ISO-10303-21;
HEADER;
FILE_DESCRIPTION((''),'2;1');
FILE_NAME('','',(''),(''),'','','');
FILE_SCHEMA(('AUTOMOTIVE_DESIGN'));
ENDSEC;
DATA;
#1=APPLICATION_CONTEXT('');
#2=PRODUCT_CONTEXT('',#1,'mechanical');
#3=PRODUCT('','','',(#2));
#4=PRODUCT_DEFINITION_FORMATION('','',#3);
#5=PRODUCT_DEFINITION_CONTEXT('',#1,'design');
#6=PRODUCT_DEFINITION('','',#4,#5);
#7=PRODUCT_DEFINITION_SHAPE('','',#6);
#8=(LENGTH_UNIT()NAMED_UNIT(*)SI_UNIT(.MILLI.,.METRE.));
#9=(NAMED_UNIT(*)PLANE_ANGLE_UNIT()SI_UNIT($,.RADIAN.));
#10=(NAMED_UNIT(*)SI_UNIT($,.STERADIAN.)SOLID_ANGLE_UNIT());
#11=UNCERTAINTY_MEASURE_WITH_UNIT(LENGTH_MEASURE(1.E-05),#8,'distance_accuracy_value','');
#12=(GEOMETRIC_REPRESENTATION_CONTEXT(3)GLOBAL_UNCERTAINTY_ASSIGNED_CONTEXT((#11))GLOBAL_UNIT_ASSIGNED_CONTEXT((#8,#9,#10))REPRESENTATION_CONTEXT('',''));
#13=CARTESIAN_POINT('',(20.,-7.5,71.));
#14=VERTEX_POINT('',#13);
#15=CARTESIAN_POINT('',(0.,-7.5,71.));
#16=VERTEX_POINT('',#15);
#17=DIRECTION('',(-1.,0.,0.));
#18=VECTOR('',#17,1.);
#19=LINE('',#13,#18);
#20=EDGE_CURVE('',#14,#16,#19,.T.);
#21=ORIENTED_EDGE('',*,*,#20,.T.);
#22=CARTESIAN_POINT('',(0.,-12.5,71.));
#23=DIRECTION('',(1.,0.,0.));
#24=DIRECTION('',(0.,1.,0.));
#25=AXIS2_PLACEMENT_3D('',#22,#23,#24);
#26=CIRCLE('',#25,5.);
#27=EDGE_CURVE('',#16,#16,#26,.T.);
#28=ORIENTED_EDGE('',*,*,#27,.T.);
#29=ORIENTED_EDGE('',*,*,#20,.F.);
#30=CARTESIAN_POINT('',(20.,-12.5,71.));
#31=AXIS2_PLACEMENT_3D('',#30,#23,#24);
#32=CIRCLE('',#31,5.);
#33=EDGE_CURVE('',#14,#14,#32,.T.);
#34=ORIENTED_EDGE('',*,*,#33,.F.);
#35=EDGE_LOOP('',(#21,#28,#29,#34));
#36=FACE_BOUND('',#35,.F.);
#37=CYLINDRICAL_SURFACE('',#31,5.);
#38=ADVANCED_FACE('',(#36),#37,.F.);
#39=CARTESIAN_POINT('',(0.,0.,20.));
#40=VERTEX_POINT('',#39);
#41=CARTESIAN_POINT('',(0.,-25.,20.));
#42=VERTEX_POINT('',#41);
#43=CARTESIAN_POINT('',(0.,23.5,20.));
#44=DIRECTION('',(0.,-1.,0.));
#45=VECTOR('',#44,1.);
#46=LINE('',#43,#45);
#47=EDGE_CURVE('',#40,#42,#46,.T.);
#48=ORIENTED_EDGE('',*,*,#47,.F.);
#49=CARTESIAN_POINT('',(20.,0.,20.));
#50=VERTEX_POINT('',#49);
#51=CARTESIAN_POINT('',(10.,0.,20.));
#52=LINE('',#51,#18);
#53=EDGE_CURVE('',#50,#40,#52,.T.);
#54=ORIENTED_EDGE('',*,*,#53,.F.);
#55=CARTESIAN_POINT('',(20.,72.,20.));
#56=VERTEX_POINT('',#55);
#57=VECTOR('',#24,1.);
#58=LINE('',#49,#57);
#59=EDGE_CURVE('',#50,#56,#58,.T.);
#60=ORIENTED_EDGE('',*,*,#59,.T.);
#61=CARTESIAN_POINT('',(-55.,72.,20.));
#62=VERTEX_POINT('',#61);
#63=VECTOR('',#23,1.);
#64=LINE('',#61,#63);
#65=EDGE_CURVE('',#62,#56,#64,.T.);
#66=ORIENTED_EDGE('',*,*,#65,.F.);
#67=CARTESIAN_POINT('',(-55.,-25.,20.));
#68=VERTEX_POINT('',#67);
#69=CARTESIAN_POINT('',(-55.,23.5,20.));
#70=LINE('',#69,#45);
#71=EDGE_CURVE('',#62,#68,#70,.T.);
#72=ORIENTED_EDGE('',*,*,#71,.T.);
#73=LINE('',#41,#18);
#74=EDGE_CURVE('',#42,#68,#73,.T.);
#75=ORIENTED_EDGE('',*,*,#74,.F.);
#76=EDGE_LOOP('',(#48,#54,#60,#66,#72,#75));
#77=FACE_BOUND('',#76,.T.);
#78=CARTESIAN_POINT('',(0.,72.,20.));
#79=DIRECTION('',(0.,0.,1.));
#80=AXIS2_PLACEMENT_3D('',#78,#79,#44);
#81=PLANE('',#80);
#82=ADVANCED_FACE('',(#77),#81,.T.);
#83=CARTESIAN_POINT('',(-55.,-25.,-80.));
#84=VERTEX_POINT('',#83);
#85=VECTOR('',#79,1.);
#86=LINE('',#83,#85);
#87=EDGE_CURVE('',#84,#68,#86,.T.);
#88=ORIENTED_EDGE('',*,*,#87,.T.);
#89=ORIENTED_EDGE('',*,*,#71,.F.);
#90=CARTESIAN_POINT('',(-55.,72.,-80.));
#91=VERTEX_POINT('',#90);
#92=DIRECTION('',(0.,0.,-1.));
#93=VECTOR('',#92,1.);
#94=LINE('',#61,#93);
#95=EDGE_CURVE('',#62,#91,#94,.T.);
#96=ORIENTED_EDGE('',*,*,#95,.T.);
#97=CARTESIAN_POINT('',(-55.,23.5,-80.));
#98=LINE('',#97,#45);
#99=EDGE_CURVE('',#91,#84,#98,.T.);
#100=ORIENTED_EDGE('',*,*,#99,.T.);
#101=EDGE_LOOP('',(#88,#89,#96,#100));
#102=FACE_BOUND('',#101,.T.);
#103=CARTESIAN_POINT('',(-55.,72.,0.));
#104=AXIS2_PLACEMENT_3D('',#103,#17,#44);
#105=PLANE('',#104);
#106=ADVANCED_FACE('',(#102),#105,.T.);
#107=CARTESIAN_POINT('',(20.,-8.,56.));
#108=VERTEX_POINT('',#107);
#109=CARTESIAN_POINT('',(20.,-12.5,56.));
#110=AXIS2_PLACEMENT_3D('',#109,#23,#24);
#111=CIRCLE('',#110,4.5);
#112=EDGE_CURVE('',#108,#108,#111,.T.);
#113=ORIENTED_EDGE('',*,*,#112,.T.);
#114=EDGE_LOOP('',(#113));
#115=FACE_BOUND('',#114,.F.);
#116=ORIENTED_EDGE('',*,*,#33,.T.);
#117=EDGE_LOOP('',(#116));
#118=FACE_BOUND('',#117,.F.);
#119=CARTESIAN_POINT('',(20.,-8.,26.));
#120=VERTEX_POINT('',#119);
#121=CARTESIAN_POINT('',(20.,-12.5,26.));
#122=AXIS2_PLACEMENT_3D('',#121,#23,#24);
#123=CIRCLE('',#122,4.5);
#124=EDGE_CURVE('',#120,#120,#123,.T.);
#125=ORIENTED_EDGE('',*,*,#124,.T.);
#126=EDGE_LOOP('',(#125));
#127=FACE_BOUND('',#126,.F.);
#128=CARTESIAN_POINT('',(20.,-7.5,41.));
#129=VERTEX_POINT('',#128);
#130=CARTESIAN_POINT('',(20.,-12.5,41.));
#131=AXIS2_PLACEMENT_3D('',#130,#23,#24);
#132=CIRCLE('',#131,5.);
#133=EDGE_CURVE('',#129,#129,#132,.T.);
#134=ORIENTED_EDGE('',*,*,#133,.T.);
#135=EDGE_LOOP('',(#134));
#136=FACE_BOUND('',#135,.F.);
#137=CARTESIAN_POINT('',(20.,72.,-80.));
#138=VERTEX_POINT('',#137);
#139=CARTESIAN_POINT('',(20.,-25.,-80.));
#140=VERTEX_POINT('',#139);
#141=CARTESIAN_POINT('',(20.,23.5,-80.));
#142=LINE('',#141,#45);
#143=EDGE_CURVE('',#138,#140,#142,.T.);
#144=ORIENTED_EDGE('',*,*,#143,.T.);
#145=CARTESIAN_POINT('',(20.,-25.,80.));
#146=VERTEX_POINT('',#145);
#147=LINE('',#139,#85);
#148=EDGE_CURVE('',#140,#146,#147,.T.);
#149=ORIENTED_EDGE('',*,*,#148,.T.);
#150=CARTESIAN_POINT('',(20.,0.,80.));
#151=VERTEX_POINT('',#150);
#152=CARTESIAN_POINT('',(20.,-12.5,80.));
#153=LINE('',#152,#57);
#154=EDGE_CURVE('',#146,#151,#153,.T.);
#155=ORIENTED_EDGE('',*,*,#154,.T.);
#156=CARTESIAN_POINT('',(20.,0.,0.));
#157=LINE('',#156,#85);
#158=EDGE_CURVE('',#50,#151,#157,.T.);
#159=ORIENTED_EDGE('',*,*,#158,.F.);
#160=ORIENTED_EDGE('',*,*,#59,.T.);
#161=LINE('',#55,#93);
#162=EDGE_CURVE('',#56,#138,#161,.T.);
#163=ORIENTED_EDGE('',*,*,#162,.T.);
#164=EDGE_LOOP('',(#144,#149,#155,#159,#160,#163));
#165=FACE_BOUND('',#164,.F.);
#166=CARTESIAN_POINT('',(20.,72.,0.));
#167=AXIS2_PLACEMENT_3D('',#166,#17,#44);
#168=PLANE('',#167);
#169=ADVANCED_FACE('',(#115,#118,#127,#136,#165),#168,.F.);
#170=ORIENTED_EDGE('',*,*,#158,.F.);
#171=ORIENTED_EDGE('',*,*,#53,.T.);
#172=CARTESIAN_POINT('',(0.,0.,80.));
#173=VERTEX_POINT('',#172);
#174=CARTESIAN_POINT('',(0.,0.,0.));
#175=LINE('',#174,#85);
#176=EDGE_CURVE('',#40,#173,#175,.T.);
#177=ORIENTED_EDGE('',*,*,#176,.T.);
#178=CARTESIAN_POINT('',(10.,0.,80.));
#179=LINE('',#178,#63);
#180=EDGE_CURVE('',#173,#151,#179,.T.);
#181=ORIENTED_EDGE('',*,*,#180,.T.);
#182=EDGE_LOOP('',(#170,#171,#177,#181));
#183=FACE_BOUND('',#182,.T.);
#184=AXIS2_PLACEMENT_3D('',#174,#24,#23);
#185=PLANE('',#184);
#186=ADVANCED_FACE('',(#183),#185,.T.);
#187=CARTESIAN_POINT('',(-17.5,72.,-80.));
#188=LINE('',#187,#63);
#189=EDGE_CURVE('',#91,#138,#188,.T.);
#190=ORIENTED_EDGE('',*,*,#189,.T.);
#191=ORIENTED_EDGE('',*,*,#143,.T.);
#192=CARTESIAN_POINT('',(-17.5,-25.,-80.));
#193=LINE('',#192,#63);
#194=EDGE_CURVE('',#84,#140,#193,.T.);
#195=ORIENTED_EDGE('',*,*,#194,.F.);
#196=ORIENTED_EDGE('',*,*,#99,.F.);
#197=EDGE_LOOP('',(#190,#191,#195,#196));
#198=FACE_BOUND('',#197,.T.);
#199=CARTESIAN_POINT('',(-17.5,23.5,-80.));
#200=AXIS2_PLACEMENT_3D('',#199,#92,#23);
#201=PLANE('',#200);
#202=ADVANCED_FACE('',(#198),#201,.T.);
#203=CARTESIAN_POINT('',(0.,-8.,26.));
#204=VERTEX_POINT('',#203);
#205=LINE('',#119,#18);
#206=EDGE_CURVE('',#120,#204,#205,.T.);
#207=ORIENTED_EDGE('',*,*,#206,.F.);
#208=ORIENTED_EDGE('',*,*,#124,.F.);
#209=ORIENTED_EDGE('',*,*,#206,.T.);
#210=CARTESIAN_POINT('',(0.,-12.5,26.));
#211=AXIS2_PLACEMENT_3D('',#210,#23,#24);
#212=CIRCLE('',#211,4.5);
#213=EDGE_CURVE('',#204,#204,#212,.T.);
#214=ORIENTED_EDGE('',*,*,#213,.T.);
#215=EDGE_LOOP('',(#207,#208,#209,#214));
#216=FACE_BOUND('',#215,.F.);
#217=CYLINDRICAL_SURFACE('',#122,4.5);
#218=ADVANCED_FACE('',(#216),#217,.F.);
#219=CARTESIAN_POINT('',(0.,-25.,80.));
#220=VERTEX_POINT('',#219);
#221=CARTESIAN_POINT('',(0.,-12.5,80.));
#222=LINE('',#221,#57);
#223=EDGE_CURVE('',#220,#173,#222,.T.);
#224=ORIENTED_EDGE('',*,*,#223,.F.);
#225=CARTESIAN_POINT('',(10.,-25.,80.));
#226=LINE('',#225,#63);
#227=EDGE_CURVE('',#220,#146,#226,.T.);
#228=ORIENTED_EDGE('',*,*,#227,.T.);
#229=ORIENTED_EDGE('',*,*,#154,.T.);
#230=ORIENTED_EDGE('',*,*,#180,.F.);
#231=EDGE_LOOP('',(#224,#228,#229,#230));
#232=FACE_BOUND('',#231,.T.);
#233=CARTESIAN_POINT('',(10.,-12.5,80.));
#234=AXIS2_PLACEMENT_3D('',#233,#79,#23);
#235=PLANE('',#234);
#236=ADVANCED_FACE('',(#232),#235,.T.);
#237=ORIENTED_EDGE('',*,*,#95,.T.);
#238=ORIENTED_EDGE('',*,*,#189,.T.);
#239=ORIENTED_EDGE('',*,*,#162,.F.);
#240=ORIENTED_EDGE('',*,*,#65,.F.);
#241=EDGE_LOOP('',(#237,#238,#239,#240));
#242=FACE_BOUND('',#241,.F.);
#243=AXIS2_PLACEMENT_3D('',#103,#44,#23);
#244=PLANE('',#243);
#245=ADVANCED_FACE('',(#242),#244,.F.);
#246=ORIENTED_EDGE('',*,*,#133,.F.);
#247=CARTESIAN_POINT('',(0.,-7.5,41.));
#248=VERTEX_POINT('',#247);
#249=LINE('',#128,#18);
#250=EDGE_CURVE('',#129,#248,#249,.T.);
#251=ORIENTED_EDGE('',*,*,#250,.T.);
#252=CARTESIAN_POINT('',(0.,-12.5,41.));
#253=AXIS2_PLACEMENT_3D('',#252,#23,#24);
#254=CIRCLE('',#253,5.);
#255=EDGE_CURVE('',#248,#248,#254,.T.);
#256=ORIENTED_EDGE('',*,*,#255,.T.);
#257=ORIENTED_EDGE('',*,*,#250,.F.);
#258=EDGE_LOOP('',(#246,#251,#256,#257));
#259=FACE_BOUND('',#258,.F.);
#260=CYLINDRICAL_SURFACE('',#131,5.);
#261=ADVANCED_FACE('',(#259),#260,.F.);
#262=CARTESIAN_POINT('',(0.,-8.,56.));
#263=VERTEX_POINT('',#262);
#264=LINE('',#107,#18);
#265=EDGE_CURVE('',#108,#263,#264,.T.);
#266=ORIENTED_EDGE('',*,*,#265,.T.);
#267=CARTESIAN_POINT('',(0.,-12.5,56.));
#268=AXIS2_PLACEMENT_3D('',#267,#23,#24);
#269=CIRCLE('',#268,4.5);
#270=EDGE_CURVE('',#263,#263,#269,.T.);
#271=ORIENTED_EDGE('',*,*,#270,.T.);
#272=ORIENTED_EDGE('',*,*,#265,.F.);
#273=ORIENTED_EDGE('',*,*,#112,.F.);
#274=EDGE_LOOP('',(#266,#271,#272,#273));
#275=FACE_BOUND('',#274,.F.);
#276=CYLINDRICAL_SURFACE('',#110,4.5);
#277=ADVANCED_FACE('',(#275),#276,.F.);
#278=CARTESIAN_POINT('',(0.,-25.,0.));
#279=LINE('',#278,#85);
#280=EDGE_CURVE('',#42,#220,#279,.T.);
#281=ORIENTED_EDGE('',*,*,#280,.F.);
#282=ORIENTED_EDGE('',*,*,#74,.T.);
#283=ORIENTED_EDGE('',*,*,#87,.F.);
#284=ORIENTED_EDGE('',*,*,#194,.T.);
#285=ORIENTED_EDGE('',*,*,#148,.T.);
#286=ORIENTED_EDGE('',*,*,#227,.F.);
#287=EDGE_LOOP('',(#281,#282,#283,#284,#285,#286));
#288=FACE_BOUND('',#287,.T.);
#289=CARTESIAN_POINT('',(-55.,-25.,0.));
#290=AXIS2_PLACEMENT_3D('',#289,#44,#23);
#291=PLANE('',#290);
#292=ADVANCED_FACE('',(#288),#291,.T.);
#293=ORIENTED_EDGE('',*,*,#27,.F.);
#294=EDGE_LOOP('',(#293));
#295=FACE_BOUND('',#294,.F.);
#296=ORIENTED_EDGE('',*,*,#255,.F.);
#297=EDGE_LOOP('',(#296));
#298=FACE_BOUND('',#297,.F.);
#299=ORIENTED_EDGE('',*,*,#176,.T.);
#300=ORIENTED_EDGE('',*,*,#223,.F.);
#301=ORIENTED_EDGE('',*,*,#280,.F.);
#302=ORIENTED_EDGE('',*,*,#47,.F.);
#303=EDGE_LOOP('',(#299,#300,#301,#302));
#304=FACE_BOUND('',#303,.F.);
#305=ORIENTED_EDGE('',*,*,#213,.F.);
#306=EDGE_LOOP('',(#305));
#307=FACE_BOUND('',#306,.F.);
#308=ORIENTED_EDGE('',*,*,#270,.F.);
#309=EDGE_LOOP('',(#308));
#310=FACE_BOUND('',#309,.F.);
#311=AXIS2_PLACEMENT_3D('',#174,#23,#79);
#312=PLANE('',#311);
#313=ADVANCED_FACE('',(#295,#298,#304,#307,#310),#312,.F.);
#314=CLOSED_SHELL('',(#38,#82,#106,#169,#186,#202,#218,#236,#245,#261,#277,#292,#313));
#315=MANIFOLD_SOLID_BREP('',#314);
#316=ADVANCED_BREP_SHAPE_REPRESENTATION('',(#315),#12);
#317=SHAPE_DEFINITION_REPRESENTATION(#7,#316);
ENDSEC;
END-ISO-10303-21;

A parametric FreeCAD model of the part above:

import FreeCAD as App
import Part
import Sketcher

doc = App.newDocument("Part")
body = doc.addObject("PartDesign::Body", "Body")

sketch1 = body.newObject("Sketcher::SketchObject", "Sketch")
sketch1.AttachmentSupport = (doc.getObject("XY_Plane"), [""])
sketch1.MapMode = "FlatFace"
sketch1.addGeometry(Part.LineSegment(App.Vector(0, 0, 0), App.Vector(0, -25, 0)), False)
sketch1.addGeometry(Part.LineSegment(App.Vector(0, -25, 0), App.Vector(20, -25, 0)), False)
sketch1.addGeometry(Part.LineSegment(App.Vector(20, -25, 0), App.Vector(20, 0, 0)), False)
sketch1.addGeometry(Part.LineSegment(App.Vector(20, 0, 0), App.Vector(0, 0, 0)), False)
sketch1.addConstraint(Sketcher.Constraint("Coincident", 0, 2, 1, 1))
sketch1.addConstraint(Sketcher.Constraint("Coincident", 1, 2, 2, 1))
sketch1.addConstraint(Sketcher.Constraint("Coincident", 2, 2, 3, 1))
sketch1.addConstraint(Sketcher.Constraint("Coincident", 3, 2, 0, 1))
sketch1.addConstraint(Sketcher.Constraint("Vertical", 0))
sketch1.addConstraint(Sketcher.Constraint("Horizontal", 1))
sketch1.addConstraint(Sketcher.Constraint("Vertical", 2))
sketch1.addConstraint(Sketcher.Constraint("Horizontal", 3))
sketch1.addConstraint(Sketcher.Constraint("Coincident", 3, 2, -1, 1))
sketch1.addConstraint(Sketcher.Constraint("DistanceX", 1, 1, 1, 2, 20.0))
sketch1.addConstraint(Sketcher.Constraint("DistanceY", 0, 2, 0, 1, 25.0))
pad1 = body.newObject("PartDesign::Pad", "Pad")
pad1.Profile = sketch1
pad1.Length = 80

sketch2 = body.newObject("Sketcher::SketchObject", "Sketch001")
sketch2.AttachmentSupport = (doc.getObject("YZ_Plane"), [""])
sketch2.MapMode = "FlatFace"
sketch2.AttachmentOffset = App.Placement(App.Vector(0, 0, 20), App.Rotation())
sketch2.addGeometry(Part.Circle(App.Vector(-12.5, 71, 0), App.Vector(0, 0, 1), 5), False)
sketch2.addGeometry(Part.Circle(App.Vector(-12.5, 56, 0), App.Vector(0, 0, 1), 4.5), False)
sketch2.addGeometry(Part.Circle(App.Vector(-12.5, 41, 0), App.Vector(0, 0, 1), 5), False)
sketch2.addGeometry(Part.Circle(App.Vector(-12.5, 26, 0), App.Vector(0, 0, 1), 4.5), False)
sketch2.addConstraint(Sketcher.Constraint("Equal", 0, 2))
sketch2.addConstraint(Sketcher.Constraint("Equal", 1, 3))
sketch2.addConstraint(Sketcher.Constraint("Vertical", 0, 3, 1, 3))
sketch2.addConstraint(Sketcher.Constraint("Vertical", 1, 3, 2, 3))
sketch2.addConstraint(Sketcher.Constraint("Vertical", 2, 3, 3, 3))
sketch2.addConstraint(Sketcher.Constraint("Diameter", 0, 10.0))
sketch2.addConstraint(Sketcher.Constraint("Diameter", 1, 9.0))
sketch2.addConstraint(Sketcher.Constraint("DistanceY", -1, 1, 0, 3, 71.0))
sketch2.addConstraint(Sketcher.Constraint("DistanceY", -1, 1, 1, 3, 56.0))
sketch2.addConstraint(Sketcher.Constraint("DistanceY", -1, 1, 2, 3, 41.0))
sketch2.addConstraint(Sketcher.Constraint("DistanceY", -1, 1, 3, 3, 26.0))
sketch2.addConstraint(Sketcher.Constraint("DistanceX", 0, 3, -1, 1, 12.5))
pocket1 = body.newObject("PartDesign::Pocket", "Pocket")
pocket1.Profile = sketch2
pocket1.Length = 25

sketch3 = body.newObject("Sketcher::SketchObject", "Sketch002")
sketch3.AttachmentSupport = (doc.getObject("XZ_Plane"), [""])
sketch3.MapMode = "FlatFace"
sketch3.addGeometry(Part.LineSegment(App.Vector(20, 20, 0), App.Vector(20, 0, 0)), False)
sketch3.addGeometry(Part.LineSegment(App.Vector(20, 0, 0), App.Vector(0, 0, 0)), False)
sketch3.addGeometry(Part.LineSegment(App.Vector(0, 0, 0), App.Vector(0, 20, 0)), False)
sketch3.addGeometry(Part.LineSegment(App.Vector(0, 20, 0), App.Vector(20, 20, 0)), False)
sketch3.addConstraint(Sketcher.Constraint("Coincident", 0, 2, 1, 1))
sketch3.addConstraint(Sketcher.Constraint("Coincident", 1, 2, 2, 1))
sketch3.addConstraint(Sketcher.Constraint("Coincident", 2, 2, 3, 1))
sketch3.addConstraint(Sketcher.Constraint("Coincident", 3, 2, 0, 1))
sketch3.addConstraint(Sketcher.Constraint("Vertical", 0))
sketch3.addConstraint(Sketcher.Constraint("Horizontal", 1))
sketch3.addConstraint(Sketcher.Constraint("Vertical", 2))
sketch3.addConstraint(Sketcher.Constraint("Horizontal", 3))
sketch3.addConstraint(Sketcher.Constraint("Coincident", 1, 2, -1, 1))
sketch3.addConstraint(Sketcher.Constraint("Equal", 3, 0))
sketch3.addConstraint(Sketcher.Constraint("DistanceX", 1, 2, 1, 1, 20.0))
pad2 = body.newObject("PartDesign::Pad", "Pad001")
pad2.Profile = sketch3
pad2.Length = 72
pad2.Reversed = True

sketch4 = body.newObject("Sketcher::SketchObject", "Sketch003")
sketch4.AttachmentSupport = (doc.getObject("YZ_Plane"), [""])
sketch4.MapMode = "FlatFace"
sketch4.addGeometry(Part.LineSegment(App.Vector(72, 20, 0), App.Vector(72, 0, 0)), False)
sketch4.addGeometry(Part.LineSegment(App.Vector(72, 0, 0), App.Vector(-25, 0, 0)), False)
sketch4.addGeometry(Part.LineSegment(App.Vector(-25, 0, 0), App.Vector(-25, 20, 0)), False)
sketch4.addGeometry(Part.LineSegment(App.Vector(-25, 20, 0), App.Vector(72, 20, 0)), False)
sketch4.addConstraint(Sketcher.Constraint("Coincident", 0, 2, 1, 1))
sketch4.addConstraint(Sketcher.Constraint("Coincident", 1, 2, 2, 1))
sketch4.addConstraint(Sketcher.Constraint("Coincident", 2, 2, 3, 1))
sketch4.addConstraint(Sketcher.Constraint("Coincident", 3, 2, 0, 1))
sketch4.addConstraint(Sketcher.Constraint("Vertical", 0))
sketch4.addConstraint(Sketcher.Constraint("Horizontal", 1))
sketch4.addConstraint(Sketcher.Constraint("Vertical", 2))
sketch4.addConstraint(Sketcher.Constraint("Horizontal", 3))
sketch4.addConstraint(Sketcher.Constraint("PointOnObject", 0, 2, -1))
sketch4.addConstraint(Sketcher.Constraint("DistanceX", 1, 2, 1, 1, 97.0))
sketch4.addConstraint(Sketcher.Constraint("DistanceY", 0, 2, 0, 1, 20.0))
sketch4.addConstraint(Sketcher.Constraint("DistanceX", -1, 1, 0, 2, 72.0))
pad3 = body.newObject("PartDesign::Pad", "Pad002")
pad3.Profile = sketch4
pad3.Length = 55
pad3.Reversed = True

sketch5 = body.newObject("Sketcher::SketchObject", "Sketch004")
sketch5.AttachmentSupport = (doc.getObject("XY_Plane"), [""])
sketch5.MapMode = "FlatFace"
sketch5.addGeometry(Part.LineSegment(App.Vector(-55, -25, 0), App.Vector(-55, 72, 0)), False)
sketch5.addGeometry(Part.LineSegment(App.Vector(-55, 72, 0), App.Vector(20, 72, 0)), False)
sketch5.addGeometry(Part.LineSegment(App.Vector(20, 72, 0), App.Vector(20, -25, 0)), False)
sketch5.addGeometry(Part.LineSegment(App.Vector(20, -25, 0), App.Vector(-55, -25, 0)), False)
sketch5.addConstraint(Sketcher.Constraint("Coincident", 0, 2, 1, 1))
sketch5.addConstraint(Sketcher.Constraint("Coincident", 1, 2, 2, 1))
sketch5.addConstraint(Sketcher.Constraint("Coincident", 2, 2, 3, 1))
sketch5.addConstraint(Sketcher.Constraint("Coincident", 3, 2, 0, 1))
sketch5.addConstraint(Sketcher.Constraint("Vertical", 0))
sketch5.addConstraint(Sketcher.Constraint("Horizontal", 1))
sketch5.addConstraint(Sketcher.Constraint("Vertical", 2))
sketch5.addConstraint(Sketcher.Constraint("Horizontal", 3))
sketch5.addConstraint(Sketcher.Constraint("DistanceX", 1, 1, 1, 2, 75.0))
sketch5.addConstraint(Sketcher.Constraint("DistanceY", 0, 1, 0, 2, 97.0))
sketch5.addConstraint(Sketcher.Constraint("DistanceX", 0, 2, -1, 1, 55.0))
sketch5.addConstraint(Sketcher.Constraint("DistanceY", -1, 1, 0, 2, 72.0))
pad4 = body.newObject("PartDesign::Pad", "Pad003")
pad4.Profile = sketch5
pad4.Length = 80
pad4.Reversed = True

doc.recompute()
